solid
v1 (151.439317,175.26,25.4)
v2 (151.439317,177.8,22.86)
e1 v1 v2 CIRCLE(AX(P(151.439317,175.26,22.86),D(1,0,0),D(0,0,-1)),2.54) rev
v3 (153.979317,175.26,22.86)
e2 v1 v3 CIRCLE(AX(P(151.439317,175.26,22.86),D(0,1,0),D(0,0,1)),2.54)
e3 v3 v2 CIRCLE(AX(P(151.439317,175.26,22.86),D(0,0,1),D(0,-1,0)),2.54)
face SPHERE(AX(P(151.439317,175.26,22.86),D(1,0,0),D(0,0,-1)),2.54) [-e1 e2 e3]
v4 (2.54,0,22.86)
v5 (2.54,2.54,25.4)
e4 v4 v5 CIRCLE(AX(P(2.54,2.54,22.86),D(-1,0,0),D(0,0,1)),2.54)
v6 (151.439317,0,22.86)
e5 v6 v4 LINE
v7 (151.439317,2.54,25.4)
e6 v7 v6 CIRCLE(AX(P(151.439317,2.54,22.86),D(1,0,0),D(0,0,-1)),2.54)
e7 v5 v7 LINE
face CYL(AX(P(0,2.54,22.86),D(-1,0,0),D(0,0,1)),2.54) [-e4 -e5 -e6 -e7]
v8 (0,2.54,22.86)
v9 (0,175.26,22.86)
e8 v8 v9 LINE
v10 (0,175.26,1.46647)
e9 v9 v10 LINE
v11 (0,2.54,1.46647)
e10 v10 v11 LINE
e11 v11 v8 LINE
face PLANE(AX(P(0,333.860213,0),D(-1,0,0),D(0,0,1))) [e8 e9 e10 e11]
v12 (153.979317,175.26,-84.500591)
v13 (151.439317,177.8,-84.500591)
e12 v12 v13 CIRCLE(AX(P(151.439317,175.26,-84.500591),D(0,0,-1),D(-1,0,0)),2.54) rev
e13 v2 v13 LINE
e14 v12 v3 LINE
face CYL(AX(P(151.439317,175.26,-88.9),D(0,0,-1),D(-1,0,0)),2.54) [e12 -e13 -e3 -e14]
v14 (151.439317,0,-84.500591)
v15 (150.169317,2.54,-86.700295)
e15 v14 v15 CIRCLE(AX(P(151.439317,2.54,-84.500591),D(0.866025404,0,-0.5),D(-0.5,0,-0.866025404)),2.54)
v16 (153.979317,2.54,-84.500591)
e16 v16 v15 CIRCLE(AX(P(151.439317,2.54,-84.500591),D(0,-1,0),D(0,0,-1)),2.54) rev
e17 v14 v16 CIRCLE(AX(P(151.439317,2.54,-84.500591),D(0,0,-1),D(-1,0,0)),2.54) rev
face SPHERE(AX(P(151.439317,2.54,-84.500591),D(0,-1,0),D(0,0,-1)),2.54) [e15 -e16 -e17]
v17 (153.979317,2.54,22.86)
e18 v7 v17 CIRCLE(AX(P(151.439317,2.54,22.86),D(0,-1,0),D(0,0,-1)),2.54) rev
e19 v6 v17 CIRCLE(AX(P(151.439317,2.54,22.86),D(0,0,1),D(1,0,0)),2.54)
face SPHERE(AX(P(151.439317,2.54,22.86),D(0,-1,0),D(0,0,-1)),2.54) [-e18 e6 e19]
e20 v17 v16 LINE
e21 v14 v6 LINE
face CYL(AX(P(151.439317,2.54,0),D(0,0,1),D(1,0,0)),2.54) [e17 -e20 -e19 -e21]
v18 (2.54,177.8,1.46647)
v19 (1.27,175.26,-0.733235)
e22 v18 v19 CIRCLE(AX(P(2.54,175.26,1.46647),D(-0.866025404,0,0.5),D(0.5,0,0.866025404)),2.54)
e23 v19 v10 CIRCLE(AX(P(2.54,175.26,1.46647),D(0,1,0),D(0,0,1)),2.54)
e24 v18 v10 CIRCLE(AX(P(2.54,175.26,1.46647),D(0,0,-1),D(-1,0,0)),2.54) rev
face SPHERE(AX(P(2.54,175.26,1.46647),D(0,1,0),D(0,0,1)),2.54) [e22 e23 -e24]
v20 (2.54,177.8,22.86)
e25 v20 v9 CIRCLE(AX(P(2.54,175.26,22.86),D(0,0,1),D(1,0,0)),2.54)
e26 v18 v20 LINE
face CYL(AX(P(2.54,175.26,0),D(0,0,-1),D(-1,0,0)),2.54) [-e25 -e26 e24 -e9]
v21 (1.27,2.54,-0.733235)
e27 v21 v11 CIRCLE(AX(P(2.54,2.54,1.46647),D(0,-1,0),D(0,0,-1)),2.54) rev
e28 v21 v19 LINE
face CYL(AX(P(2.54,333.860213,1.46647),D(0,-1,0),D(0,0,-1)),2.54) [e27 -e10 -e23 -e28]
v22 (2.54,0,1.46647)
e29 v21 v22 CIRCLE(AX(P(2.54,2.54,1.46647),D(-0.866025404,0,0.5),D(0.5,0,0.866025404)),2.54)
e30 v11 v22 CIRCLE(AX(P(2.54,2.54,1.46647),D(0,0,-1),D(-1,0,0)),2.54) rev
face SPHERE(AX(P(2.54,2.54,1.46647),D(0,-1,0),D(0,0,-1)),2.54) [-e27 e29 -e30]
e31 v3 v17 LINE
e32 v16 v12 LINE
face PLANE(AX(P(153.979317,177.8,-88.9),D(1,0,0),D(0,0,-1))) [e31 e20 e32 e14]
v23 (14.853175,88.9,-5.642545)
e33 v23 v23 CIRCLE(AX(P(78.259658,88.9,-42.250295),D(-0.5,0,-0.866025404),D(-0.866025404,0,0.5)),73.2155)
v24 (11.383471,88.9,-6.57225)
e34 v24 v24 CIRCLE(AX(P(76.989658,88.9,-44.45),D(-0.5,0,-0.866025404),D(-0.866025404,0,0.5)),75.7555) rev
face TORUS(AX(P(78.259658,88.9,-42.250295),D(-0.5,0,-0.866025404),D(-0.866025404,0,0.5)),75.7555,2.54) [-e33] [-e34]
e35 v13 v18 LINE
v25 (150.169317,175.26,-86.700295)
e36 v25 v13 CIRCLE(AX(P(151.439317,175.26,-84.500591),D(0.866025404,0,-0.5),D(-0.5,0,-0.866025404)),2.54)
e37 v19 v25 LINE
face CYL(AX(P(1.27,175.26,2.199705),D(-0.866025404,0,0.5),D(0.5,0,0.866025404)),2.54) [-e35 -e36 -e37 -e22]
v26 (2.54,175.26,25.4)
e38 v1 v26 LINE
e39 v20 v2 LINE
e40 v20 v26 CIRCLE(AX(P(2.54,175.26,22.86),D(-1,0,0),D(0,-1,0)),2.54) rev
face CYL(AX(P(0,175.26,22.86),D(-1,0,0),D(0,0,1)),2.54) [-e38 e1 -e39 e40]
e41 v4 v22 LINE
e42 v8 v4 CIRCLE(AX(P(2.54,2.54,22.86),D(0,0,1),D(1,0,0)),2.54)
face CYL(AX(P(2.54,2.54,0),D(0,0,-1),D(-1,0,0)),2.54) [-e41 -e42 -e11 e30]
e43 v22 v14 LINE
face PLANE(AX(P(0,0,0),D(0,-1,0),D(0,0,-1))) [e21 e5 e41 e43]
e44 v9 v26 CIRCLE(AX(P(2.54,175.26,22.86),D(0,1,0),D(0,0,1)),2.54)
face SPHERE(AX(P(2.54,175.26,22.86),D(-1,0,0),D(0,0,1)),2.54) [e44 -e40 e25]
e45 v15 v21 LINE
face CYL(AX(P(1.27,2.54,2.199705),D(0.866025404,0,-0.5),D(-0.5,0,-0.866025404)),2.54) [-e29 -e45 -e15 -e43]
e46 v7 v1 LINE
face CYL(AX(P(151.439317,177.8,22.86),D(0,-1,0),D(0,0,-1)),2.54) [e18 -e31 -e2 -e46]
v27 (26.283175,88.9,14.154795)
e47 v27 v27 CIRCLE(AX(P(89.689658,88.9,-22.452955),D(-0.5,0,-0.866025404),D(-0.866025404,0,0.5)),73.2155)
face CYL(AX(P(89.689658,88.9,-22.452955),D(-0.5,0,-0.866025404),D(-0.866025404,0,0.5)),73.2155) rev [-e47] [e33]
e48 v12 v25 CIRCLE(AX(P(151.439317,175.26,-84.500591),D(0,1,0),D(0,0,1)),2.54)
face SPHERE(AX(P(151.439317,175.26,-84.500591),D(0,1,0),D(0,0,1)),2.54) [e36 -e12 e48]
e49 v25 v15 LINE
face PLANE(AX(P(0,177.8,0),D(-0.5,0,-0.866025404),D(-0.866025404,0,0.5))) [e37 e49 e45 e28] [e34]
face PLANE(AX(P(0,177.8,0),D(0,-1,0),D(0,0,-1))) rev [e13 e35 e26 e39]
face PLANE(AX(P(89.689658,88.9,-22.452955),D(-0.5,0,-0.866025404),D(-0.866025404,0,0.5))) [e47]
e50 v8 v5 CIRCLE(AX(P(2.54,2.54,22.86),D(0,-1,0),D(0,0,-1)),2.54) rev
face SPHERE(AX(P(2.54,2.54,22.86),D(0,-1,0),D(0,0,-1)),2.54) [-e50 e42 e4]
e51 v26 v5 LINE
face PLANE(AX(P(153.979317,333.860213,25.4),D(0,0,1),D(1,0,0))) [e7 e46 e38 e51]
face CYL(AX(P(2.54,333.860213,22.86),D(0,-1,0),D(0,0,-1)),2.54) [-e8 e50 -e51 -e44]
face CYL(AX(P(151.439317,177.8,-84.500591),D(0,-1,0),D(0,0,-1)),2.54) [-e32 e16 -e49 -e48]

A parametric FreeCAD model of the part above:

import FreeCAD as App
import Part
import Sketcher

V = App.Vector
Q = App.Units.Quantity


def edges_at(feature, points):
    """Names of the edges that pass closest to the given points."""
    edges = feature.Shape.Edges
    near = lambda p: min(range(len(edges)), key=lambda i: edges[i].distToShape(Part.Vertex(*p))[0])
    return sorted({f"Edge{near(p) + 1}" for p in points})


def add_polygon(sketch, points):
    """Adds a closed chain of lines whose ends are joined by coincident constraints."""
    first, n = sketch.GeometryCount, len(points)
    for a, b in zip(points, points[1:] + points[:1]):
        sketch.addGeometry(Part.LineSegment(App.Vector(*a, 0), App.Vector(*b, 0)), False)
    for i in range(n):
        sketch.addConstraint(Sketcher.Constraint("Coincident", first + i, 2, first + (i + 1) % n, 1))

doc = App.newDocument("Part")
body = doc.addObject("PartDesign::Body", "Body")

sketch1 = doc.addObject("Sketcher::SketchObject", "Sketch")
body.addObject(sketch1)
sketch1.AttachmentSupport = (doc.XZ_Plane, [""])
sketch1.MapMode = "FlatFace"
add_polygon(sketch1, [(0, 0), (154, 0), (154, -89)])
sketch1.addConstraint(Sketcher.Constraint("Horizontal", 0))
sketch1.addConstraint(Sketcher.Constraint("Vertical", 1))
sketch1.addConstraint(Sketcher.Constraint("Coincident", 2, 2, -1, 1))
sketch1.addConstraint(Sketcher.Constraint("Distance", 2, Q("7 in")))
sketch1.addConstraint(Sketcher.Constraint("DistanceY", 1, 2, 1, 1, Q("3.5 in")))
pad1 = doc.addObject("PartDesign::Pad", "Pad")
body.addObject(pad1)
pad1.Profile = sketch1
pad1.Length = Q("7 in")
pad1.Reversed = True

sketch2 = doc.addObject("Sketcher::SketchObject", "Sketch001")
body.addObject(sketch2)
sketch2.AttachmentSupport = (doc.XZ_Plane, [""])
sketch2.MapMode = "FlatFace"
add_polygon(sketch2, [(154, 0), (154, 25), (0, 25), (0, 0)])
sketch2.addConstraint(Sketcher.Constraint("Vertical", 0))
sketch2.addConstraint(Sketcher.Constraint("Horizontal", 1))
sketch2.addConstraint(Sketcher.Constraint("Vertical", 2))
sketch2.addConstraint(Sketcher.Constraint("Horizontal", 3))
sketch2.addConstraint(Sketcher.Constraint("Coincident", 2, 2, -1, 1))
sketch2.addConstraint(Sketcher.Constraint("DistanceY", 0, 1, 0, 2, Q("1 in")))
sketch2.addConstraint(Sketcher.Constraint("DistanceX", 1, 2, 1, 1, Q("153.979317 mm")))
pad2 = doc.addObject("PartDesign::Pad", "Pad001")
body.addObject(pad2)
pad2.Profile = sketch2
pad2.Length = Q("7 in")
pad2.Reversed = True

sketch3 = doc.addObject("Sketcher::SketchObject", "Sketch002")
body.addObject(sketch3)
sketch3.Placement = App.Placement(V(0, 0, 0), App.Rotation(V(-0.866025404, 0, 0.5), V(0, 1, 0), V(-0.5, 0, -0.866025404), "ZXY"))
sketch3.addGeometry(Part.Circle(V(-89, 89, 0), V(0, 0, 1), 73), False)
sketch3.addConstraint(Sketcher.Constraint("Diameter", 0, Q("5.765 in")))
sketch3.addConstraint(Sketcher.Constraint("DistanceX", 0, 3, -1, 1, Q("3.5 in")))
sketch3.addConstraint(Sketcher.Constraint("DistanceY", -1, 1, 0, 3, Q("3.5 in")))
pocket1 = doc.addObject("PartDesign::Pocket", "Pocket")
body.addObject(pocket1)
pocket1.Profile = sketch3
pocket1.Length = Q("1 in")
doc.recompute()

fillet = doc.addObject("PartDesign::Fillet", "Fillet")
body.addObject(fillet)
fillet.Base = (pocket1, edges_at(pocket1, [
    (153.979, 88.9, 25.4),
    (0, 88.9, 25.4),
    (76.99, 0, 25.4),
    (0, 0, 12.7),
    (76.99, 177.8, -44.45),
    (0, 177.8, 12.7),
    (76.99, 177.8, 25.4),
    (140.396, 88.9, -81.058),
    (76.99, 0, -44.45),
    (153.979, 0, -44.45),
    (0, 88.9, 0),
    (153.979, 88.9, -88.9),
    (153.979, 177.8, -44.45),
]))
fillet.Radius = Q("0.1 in")

doc.recompute()
